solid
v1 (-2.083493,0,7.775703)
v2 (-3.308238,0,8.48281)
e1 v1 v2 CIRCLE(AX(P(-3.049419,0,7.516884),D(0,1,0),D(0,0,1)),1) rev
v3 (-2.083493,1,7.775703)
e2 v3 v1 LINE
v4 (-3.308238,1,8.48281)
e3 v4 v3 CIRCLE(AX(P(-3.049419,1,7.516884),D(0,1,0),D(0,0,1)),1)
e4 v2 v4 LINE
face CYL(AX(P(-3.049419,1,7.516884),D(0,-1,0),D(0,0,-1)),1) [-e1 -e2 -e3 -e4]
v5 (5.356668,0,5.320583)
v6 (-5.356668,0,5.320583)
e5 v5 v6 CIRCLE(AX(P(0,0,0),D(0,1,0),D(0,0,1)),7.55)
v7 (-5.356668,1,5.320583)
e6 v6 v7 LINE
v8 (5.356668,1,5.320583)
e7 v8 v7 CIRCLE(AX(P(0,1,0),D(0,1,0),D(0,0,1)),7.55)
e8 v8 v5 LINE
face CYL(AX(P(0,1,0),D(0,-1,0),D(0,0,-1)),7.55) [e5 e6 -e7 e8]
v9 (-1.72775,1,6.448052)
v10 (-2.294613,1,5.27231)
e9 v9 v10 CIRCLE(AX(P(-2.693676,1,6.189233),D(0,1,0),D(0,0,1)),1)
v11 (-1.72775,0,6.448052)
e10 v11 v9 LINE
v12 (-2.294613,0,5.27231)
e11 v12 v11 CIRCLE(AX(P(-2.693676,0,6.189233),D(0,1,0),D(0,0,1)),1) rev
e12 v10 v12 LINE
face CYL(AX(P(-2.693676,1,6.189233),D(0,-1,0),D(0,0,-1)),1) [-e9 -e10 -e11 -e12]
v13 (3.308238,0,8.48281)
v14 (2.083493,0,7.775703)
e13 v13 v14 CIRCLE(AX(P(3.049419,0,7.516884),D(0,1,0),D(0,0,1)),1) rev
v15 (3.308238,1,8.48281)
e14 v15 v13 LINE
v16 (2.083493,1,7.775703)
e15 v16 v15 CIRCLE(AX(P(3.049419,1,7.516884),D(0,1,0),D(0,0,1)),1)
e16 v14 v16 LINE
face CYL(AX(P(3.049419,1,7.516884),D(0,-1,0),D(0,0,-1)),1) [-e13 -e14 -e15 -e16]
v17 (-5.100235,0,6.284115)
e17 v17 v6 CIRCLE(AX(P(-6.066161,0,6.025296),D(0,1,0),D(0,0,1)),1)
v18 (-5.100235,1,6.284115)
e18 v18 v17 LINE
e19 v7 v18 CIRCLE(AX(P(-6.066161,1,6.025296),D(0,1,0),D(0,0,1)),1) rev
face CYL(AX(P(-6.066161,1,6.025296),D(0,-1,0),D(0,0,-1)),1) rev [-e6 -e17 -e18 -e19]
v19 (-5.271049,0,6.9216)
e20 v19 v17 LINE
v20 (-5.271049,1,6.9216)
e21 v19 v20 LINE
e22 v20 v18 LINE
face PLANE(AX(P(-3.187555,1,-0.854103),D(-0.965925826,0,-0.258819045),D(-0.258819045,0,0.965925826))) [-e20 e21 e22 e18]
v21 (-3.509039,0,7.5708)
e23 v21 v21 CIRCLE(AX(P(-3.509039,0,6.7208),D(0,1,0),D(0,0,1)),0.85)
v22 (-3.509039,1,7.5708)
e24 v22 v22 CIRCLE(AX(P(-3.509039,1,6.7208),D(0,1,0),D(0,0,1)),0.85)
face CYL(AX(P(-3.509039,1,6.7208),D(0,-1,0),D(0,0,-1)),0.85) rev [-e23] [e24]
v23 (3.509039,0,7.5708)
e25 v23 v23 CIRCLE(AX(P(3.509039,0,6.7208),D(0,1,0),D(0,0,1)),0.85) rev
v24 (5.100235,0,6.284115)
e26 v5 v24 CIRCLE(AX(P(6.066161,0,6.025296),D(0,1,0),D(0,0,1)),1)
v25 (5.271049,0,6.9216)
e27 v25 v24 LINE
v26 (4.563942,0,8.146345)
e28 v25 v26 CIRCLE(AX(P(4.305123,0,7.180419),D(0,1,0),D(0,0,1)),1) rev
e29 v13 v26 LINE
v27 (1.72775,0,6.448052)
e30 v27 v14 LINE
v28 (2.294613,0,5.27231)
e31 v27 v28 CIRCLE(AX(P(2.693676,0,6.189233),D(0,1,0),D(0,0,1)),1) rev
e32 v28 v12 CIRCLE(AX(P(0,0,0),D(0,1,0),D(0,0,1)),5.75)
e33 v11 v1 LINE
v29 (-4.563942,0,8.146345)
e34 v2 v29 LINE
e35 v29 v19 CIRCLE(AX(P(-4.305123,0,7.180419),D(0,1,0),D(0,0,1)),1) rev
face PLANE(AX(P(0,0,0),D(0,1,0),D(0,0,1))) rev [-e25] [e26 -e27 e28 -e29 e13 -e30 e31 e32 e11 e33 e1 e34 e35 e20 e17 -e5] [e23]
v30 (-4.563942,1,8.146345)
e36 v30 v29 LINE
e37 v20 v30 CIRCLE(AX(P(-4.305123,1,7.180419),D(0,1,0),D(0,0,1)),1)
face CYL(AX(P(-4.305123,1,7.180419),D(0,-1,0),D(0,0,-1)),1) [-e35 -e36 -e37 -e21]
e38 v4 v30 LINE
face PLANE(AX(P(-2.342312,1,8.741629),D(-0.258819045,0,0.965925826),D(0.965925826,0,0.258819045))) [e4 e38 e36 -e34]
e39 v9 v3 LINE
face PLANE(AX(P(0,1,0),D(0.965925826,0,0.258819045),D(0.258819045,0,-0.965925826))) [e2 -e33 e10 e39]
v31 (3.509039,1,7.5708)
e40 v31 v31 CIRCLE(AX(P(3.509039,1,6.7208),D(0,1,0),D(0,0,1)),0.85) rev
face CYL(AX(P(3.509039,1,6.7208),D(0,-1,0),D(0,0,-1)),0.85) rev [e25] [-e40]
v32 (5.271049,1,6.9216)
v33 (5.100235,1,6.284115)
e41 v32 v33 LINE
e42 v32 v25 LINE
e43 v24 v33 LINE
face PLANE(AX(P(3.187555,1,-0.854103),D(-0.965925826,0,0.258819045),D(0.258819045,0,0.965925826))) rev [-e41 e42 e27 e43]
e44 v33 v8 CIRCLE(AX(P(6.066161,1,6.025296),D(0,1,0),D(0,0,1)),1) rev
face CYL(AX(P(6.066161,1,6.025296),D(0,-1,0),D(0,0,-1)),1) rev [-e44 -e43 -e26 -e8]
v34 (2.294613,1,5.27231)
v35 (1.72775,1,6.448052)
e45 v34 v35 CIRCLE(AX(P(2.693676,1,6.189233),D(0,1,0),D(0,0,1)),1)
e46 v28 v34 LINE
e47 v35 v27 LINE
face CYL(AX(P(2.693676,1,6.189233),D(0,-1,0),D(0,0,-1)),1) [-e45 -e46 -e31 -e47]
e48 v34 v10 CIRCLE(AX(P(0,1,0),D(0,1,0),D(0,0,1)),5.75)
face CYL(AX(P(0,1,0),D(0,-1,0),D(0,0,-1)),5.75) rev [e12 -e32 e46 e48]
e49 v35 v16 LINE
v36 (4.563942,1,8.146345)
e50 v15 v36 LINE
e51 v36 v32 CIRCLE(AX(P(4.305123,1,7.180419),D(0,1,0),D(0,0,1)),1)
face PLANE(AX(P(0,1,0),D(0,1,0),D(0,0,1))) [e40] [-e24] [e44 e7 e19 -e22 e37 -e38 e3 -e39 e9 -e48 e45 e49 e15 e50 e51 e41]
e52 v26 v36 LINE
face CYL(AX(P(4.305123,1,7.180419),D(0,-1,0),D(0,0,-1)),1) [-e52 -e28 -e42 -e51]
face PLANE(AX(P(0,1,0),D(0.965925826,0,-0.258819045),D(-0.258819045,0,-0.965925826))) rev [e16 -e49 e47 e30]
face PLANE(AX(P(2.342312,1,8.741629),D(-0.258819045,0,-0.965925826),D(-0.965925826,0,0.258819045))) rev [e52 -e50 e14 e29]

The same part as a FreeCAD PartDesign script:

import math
import FreeCAD as App
import Part
import Sketcher
from FreeCAD import Vector
Q = App.Units.Quantity


def edges_at(feature, points):
    """Names of the edges that pass closest to the given points."""
    edges = feature.Shape.Edges
    near = lambda p: min(range(len(edges)), key=lambda i: edges[i].distToShape(Part.Vertex(*p))[0])
    return sorted({f"Edge{near(p) + 1}" for p in points})

doc = App.newDocument("Part")
params = doc.addObject("Spreadsheet::Sheet", "Params")
for row, (alias, value) in enumerate([
    ("sketch1_diameter", "1.7 mm"),
    ("sketch1_radius", "5.75 mm"),
    ("sketch1_radius2", "7.55 mm"),
    ("sketch1_length", "3.3 mm"),
    ("pad1_length", "1 mm"),
    ("fillet_radius", "1 mm"),
], start=1):
    params.set(f"A{row}", alias)
    params.set(f"B{row}", "=" + value)
    params.setAlias(f"B{row}", alias)

body = doc.addObject("PartDesign::Body", "Body")

sketch1 = body.newObject("Sketcher::SketchObject", "Sketch")
sketch1.AttachmentSupport = (doc.getObject("XZ_Plane"), [""])
sketch1.MapMode = "FlatFace"
sketch1.addGeometry(Part.LineSegment(Vector(-2.3, 8.7, 0), Vector(-1.5, 5.6, 0)), False)
sketch1.addGeometry(Part.ArcOfCircle(Part.Circle(Vector(0, 0, 0), Vector(0, 0, 1), 5.8), math.radians(105), math.radians(435)), False)
sketch1.addGeometry(Part.LineSegment(Vector(1.5, 5.6, 0), Vector(2.3, 8.7, 0)), False)
sketch1.addGeometry(Part.LineSegment(Vector(2.3, 8.7, 0), Vector(5.5, 7.9, 0)), False)
sketch1.addGeometry(Part.LineSegment(Vector(5.5, 7.9, 0), Vector(4.9, 5.7, 0)), False)
sketch1.addGeometry(Part.ArcOfCircle(Part.Circle(Vector(0, 0, 0), Vector(0, 0, 1), 7.5), math.radians(131), math.radians(409)), False)
sketch1.addGeometry(Part.LineSegment(Vector(-4.9, 5.7, 0), Vector(-5.5, 7.9, 0)), False)
sketch1.addGeometry(Part.LineSegment(Vector(-5.5, 7.9, 0), Vector(-2.3, 8.7, 0)), False)
sketch1.addGeometry(Part.Circle(Vector(-3.5, 6.7, 0), Vector(0, 0, 1), 0.8), False)
sketch1.addGeometry(Part.Circle(Vector(3.5, 6.7, 0), Vector(0, 0, 1), 0.8), False)
sketch1.addConstraint(Sketcher.Constraint("Coincident", 0, 2, 1, 1))
sketch1.addConstraint(Sketcher.Constraint("Coincident", 1, 2, 2, 1))
sketch1.addConstraint(Sketcher.Constraint("Coincident", 2, 2, 3, 1))
sketch1.addConstraint(Sketcher.Constraint("Coincident", 3, 2, 4, 1))
sketch1.addConstraint(Sketcher.Constraint("Coincident", 4, 2, 5, 2))
sketch1.addConstraint(Sketcher.Constraint("Coincident", 5, 1, 6, 1))
sketch1.addConstraint(Sketcher.Constraint("Coincident", 6, 2, 7, 1))
sketch1.addConstraint(Sketcher.Constraint("Coincident", 7, 2, 0, 1))
sketch1.addConstraint(Sketcher.Constraint("Coincident", 1, 3, -1, 1))
sketch1.addConstraint(Sketcher.Constraint("Coincident", 5, 3, -1, 1))
sketch1.addConstraint(Sketcher.Constraint("Equal", 8, 9))
sketch1.addConstraint(Sketcher.Constraint("Symmetric", 8, 3, 9, 3, -2))
sketch1.addConstraint(Sketcher.Constraint("Symmetric", 3, 2, 6, 2, -2))
sketch1.addConstraint(Sketcher.Constraint("Symmetric", 2, 2, 7, 2, -2))
sketch1.addConstraint(Sketcher.Constraint("Perpendicular", 2, 3))
sketch1.addConstraint(Sketcher.Constraint("Perpendicular", 3, 4))
sketch1.addConstraint(Sketcher.Constraint("Parallel", 0, 6))
sketch1.addConstraint(Sketcher.Constraint("Perpendicular", 6, 7))
sketch1.addConstraint(Sketcher.Constraint("Equal", 2, 3))
sketch1.addConstraint(Sketcher.Constraint("Diameter", 8, 1.7))
sketch1.addConstraint(Sketcher.Constraint("Angle", 0, Q("-75 deg")))
sketch1.addConstraint(Sketcher.Constraint("Radius", 1, 5.75))
sketch1.addConstraint(Sketcher.Constraint("Radius", 5, 7.55))
sketch1.addConstraint(Sketcher.Constraint("Distance", 0, 3.3))
sketch1.addConstraint(Sketcher.Constraint("DistanceY", -1, 1, 8, 3, 6.7208))
sketch1.addConstraint(Sketcher.Constraint("Distance", 4, 2.259381))
sketch1.addConstraint(Sketcher.Constraint("DistanceX", 8, 3, -1, 1, 3.509039))
sketch1.setExpression("Constraints[19]", "Params.sketch1_diameter")
sketch1.setExpression("Constraints[21]", "Params.sketch1_radius")
sketch1.setExpression("Constraints[22]", "Params.sketch1_radius2")
sketch1.setExpression("Constraints[23]", "Params.sketch1_length")
pad1 = body.newObject("PartDesign::Pad", "Pad")
pad1.Profile = sketch1
pad1.setExpression("Length", "Params.pad1_length")
pad1.Reversed = True
doc.recompute()

fillet = body.newObject("PartDesign::Fillet", "Fillet")
fillet.Base = (pad1, edges_at(pad1, [
    (5.53, 0.5, 7.888),
    (2.342, 0.5, 8.742),
    (1.488, 0.5, 5.554),
    (-1.488, 0.5, 5.554),
    (-2.342, 0.5, 8.742),
    (-5.53, 0.5, 7.888),
    (-4.945, 0.5, 5.705),
    (4.945, 0.5, 5.705),
]))
fillet.setExpression("Radius", "Params.fillet_radius")

doc.recompute()
